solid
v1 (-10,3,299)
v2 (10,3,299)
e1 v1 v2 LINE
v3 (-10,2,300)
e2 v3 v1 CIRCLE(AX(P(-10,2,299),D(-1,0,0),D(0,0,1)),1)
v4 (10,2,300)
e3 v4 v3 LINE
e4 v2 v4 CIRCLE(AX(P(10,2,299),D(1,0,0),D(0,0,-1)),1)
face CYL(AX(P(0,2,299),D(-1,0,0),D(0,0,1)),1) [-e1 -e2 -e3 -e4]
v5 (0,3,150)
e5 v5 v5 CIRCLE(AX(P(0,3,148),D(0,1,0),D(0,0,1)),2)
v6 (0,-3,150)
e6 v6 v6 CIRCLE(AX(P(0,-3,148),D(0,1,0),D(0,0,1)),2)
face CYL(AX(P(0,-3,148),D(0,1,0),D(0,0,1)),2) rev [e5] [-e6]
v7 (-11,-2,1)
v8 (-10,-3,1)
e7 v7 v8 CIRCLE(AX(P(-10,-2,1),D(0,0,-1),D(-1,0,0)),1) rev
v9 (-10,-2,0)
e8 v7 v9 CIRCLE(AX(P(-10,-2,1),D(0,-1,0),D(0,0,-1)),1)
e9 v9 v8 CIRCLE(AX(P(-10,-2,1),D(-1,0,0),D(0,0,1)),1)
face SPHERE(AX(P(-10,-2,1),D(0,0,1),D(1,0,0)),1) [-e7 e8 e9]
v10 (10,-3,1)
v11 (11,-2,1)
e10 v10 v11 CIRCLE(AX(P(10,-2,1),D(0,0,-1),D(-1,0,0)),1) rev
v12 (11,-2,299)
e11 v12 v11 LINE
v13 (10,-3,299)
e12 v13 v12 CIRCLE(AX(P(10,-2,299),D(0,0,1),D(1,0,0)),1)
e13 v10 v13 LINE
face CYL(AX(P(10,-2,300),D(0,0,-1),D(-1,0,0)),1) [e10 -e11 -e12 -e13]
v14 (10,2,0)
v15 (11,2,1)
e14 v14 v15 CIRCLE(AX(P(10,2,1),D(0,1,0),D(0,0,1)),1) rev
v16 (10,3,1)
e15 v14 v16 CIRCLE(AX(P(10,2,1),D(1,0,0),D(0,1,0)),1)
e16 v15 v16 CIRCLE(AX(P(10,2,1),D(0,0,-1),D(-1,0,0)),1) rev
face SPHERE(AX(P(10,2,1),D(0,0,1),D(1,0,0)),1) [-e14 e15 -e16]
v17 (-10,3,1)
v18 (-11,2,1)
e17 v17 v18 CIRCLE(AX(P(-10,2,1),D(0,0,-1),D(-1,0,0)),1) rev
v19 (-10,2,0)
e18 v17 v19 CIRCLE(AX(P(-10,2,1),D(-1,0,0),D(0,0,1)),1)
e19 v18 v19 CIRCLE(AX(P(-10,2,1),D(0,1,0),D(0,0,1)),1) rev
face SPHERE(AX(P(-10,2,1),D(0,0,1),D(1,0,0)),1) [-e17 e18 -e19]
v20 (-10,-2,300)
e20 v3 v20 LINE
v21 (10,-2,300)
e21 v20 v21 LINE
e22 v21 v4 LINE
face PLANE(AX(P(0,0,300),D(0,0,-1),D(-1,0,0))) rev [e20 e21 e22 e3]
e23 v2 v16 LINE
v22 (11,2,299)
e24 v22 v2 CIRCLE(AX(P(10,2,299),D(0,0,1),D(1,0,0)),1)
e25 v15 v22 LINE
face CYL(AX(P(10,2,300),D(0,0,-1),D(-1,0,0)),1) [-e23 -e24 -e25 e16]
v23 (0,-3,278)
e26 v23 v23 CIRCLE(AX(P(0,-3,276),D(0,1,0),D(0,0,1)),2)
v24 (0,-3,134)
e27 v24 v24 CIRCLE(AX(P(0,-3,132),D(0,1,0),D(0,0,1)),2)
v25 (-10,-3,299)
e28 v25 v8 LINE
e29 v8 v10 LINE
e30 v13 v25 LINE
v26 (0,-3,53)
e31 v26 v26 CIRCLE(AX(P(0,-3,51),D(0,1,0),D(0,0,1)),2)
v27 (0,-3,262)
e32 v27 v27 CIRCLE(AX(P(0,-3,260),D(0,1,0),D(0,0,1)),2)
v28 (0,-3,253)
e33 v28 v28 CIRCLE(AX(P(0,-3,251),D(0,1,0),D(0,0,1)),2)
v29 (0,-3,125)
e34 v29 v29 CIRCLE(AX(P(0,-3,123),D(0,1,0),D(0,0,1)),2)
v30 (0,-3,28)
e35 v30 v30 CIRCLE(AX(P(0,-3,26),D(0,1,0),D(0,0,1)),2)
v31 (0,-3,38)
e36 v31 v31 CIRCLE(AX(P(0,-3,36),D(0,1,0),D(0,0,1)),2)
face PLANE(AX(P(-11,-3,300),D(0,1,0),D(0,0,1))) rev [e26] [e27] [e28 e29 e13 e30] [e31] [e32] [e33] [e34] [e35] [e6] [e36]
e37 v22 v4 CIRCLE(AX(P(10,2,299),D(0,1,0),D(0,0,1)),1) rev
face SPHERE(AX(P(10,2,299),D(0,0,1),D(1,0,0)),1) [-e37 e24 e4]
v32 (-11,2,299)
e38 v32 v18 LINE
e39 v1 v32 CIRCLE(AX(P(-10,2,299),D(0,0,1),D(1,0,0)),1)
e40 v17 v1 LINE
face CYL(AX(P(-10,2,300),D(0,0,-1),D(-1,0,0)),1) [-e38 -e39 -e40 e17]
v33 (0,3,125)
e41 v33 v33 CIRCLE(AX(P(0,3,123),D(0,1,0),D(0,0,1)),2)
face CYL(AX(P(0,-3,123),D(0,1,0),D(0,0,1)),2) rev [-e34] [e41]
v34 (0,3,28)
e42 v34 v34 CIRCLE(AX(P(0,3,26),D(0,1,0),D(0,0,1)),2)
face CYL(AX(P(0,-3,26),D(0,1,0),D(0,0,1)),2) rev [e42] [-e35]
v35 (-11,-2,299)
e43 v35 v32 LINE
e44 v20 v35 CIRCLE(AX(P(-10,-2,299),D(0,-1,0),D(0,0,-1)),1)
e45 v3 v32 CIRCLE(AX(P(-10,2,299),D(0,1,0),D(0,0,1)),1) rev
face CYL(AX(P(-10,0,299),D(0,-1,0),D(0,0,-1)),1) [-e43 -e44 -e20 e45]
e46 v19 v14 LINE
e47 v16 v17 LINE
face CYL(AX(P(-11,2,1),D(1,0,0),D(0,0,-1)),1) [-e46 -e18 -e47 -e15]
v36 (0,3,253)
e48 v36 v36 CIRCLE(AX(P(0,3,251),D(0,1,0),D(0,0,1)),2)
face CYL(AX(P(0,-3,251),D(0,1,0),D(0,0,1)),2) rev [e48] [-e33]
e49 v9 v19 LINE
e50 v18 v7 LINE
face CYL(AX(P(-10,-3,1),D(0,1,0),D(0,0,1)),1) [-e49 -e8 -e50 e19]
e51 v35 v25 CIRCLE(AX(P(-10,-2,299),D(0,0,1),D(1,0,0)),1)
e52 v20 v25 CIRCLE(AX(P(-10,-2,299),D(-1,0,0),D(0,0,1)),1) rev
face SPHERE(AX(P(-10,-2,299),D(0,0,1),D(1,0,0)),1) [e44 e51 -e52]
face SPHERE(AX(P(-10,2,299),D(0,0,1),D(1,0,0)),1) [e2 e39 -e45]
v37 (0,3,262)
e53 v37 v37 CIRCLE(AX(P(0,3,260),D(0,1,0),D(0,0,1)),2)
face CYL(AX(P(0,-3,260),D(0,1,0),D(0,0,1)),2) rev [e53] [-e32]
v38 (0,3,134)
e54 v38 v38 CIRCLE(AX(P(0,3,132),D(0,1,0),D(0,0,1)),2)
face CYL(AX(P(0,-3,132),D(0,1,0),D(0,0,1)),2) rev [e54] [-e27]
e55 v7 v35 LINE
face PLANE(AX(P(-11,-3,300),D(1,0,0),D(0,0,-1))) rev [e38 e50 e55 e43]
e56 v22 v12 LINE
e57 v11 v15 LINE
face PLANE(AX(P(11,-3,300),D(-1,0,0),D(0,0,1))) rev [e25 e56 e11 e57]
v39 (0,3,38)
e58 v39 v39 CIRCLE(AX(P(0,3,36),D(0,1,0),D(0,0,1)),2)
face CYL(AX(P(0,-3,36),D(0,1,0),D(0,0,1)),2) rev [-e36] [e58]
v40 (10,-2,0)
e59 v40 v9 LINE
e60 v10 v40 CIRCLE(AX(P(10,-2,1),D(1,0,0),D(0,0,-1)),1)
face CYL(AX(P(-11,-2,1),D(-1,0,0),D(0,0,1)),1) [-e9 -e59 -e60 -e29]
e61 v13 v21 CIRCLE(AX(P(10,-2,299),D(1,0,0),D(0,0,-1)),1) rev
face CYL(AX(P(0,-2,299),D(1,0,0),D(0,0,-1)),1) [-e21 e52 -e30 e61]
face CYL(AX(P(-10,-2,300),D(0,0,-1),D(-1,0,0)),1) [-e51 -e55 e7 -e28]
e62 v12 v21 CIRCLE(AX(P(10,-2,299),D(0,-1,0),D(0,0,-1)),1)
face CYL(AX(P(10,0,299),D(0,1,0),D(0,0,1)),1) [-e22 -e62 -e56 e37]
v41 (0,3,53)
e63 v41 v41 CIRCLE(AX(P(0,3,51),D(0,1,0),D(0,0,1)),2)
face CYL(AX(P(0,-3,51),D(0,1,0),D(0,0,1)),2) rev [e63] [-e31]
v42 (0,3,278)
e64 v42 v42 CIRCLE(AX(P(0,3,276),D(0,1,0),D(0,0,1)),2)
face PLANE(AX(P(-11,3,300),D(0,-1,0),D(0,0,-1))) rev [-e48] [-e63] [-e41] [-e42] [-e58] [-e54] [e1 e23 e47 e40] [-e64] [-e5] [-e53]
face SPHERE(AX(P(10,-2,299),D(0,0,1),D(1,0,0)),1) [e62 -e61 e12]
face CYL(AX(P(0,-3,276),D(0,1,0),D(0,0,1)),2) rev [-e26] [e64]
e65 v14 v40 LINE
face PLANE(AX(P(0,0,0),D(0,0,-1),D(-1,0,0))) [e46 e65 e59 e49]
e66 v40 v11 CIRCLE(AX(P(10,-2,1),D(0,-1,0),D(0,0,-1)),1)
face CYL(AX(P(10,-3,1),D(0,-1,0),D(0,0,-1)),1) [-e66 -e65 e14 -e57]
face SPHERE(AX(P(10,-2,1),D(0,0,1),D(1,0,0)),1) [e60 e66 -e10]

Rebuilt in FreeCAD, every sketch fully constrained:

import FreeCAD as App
import Part
import Sketcher

V = App.Vector
Q = App.Units.Quantity


def edges_at(feature, points):
    """Names of the edges that pass closest to the given points."""
    edges = feature.Shape.Edges
    near = lambda p: min(range(len(edges)), key=lambda i: edges[i].distToShape(Part.Vertex(*p))[0])
    return sorted({f"Edge{near(p) + 1}" for p in points})

doc = App.newDocument("Part")
params = doc.addObject("Spreadsheet::Sheet", "Params")
for row, (alias, value) in enumerate([
    ("sketch1_width", "22 mm"),
    ("sketch1_height", "6 mm"),
    ("pad1_length", "300 mm"),
    ("sketch2_diameter", "4 mm"),
    ("pocket1_length", "6 mm"),
    ("fillet_radius", "1 mm"),
], start=1):
    params.set(f"A{row}", alias)
    params.set(f"B{row}", "=" + value)
    params.setAlias(f"B{row}", alias)

body = doc.addObject("PartDesign::Body", "Body")

# Sketch on XY plane
sketch1 = doc.addObject("Sketcher::SketchObject", "Sketch")
body.addObject(sketch1)
sketch1.AttachmentSupport = (doc.XY_Plane, [""])
sketch1.MapMode = "FlatFace"
sketch1.addGeometry(Part.LineSegment(V(-11, 3, 0), V(-11, -3, 0)), False)
sketch1.addGeometry(Part.LineSegment(V(-11, -3, 0), V(11, -3, 0)), False)
sketch1.addGeometry(Part.LineSegment(V(11, -3, 0), V(11, 3, 0)), False)
sketch1.addGeometry(Part.LineSegment(V(11, 3, 0), V(-11, 3, 0)), False)
sketch1.addConstraint(Sketcher.Constraint("Coincident", 0, 2, 1, 1))
sketch1.addConstraint(Sketcher.Constraint("Coincident", 1, 2, 2, 1))
sketch1.addConstraint(Sketcher.Constraint("Coincident", 2, 2, 3, 1))
sketch1.addConstraint(Sketcher.Constraint("Coincident", 3, 2, 0, 1))
sketch1.addConstraint(Sketcher.Constraint("Vertical", 0))
sketch1.addConstraint(Sketcher.Constraint("Horizontal", 1))
sketch1.addConstraint(Sketcher.Constraint("Vertical", 2))
sketch1.addConstraint(Sketcher.Constraint("Horizontal", 3))
sketch1.addConstraint(Sketcher.Constraint("Symmetric", 0, 2, 2, 2, -1, 1))
sketch1.addConstraint(Sketcher.Constraint("DistanceX", 1, 1, 1, 2, Q("22 mm")))
sketch1.addConstraint(Sketcher.Constraint("DistanceY", 0, 2, 0, 1, Q("6 mm")))
sketch1.setExpression("Constraints[9]", "Params.sketch1_width")
sketch1.setExpression("Constraints[10]", "Params.sketch1_height")
pad1 = doc.addObject("PartDesign::Pad", "Pad")
body.addObject(pad1)
pad1.Profile = sketch1
pad1.setExpression("Length", "Params.pad1_length")

# Sketch on XZ plane
sketch2 = doc.addObject("Sketcher::SketchObject", "Sketch001")
body.addObject(sketch2)
sketch2.AttachmentSupport = (doc.XZ_Plane, [""])
sketch2.MapMode = "FlatFace"
sketch2.AttachmentOffset = App.Placement(V(0, 0, -3), App.Rotation())
sketch2.addGeometry(Part.Circle(V(0, 26, 0), V(0, 0, 1), 2), False)
sketch2.addGeometry(Part.Circle(V(0, 36, 0), V(0, 0, 1), 2), False)
sketch2.addGeometry(Part.Circle(V(0, 51, 0), V(0, 0, 1), 2), False)
sketch2.addGeometry(Part.Circle(V(0, 260, 0), V(0, 0, 1), 2), False)
sketch2.addGeometry(Part.Circle(V(0, 276, 0), V(0, 0, 1), 2), False)
sketch2.addGeometry(Part.Circle(V(0, 251, 0), V(0, 0, 1), 2), False)
sketch2.addGeometry(Part.Circle(V(0, 148, 0), V(0, 0, 1), 2), False)
sketch2.addGeometry(Part.Circle(V(0, 123, 0), V(0, 0, 1), 2), False)
sketch2.addGeometry(Part.Circle(V(0, 132, 0), V(0, 0, 1), 2), False)
sketch2.addConstraint(Sketcher.Constraint("Equal", 0, 1))
sketch2.addConstraint(Sketcher.Constraint("Equal", 1, 2))
sketch2.addConstraint(Sketcher.Constraint("Equal", 2, 3))
sketch2.addConstraint(Sketcher.Constraint("Equal", 3, 4))
sketch2.addConstraint(Sketcher.Constraint("Equal", 4, 5))
sketch2.addConstraint(Sketcher.Constraint("Equal", 5, 6))
sketch2.addConstraint(Sketcher.Constraint("Equal", 6, 7))
sketch2.addConstraint(Sketcher.Constraint("Equal", 7, 8))
sketch2.addConstraint(Sketcher.Constraint("PointOnObject", 0, 3, -2))
sketch2.addConstraint(Sketcher.Constraint("PointOnObject", 1, 3, -2))
sketch2.addConstraint(Sketcher.Constraint("PointOnObject", 2, 3, -2))
sketch2.addConstraint(Sketcher.Constraint("PointOnObject", 3, 3, -2))
sketch2.addConstraint(Sketcher.Constraint("PointOnObject", 4, 3, -2))
sketch2.addConstraint(Sketcher.Constraint("PointOnObject", 5, 3, -2))
sketch2.addConstraint(Sketcher.Constraint("PointOnObject", 6, 3, -2))
sketch2.addConstraint(Sketcher.Constraint("PointOnObject", 7, 3, -2))
sketch2.addConstraint(Sketcher.Constraint("PointOnObject", 8, 3, -2))
sketch2.addConstraint(Sketcher.Constraint("Diameter", 0, Q("4 mm")))
sketch2.addConstraint(Sketcher.Constraint("DistanceY", -1, 1, 0, 3, Q("26 mm")))
sketch2.addConstraint(Sketcher.Constraint("DistanceY", -1, 1, 1, 3, Q("36 mm")))
sketch2.addConstraint(Sketcher.Constraint("DistanceY", -1, 1, 2, 3, Q("51 mm")))
sketch2.addConstraint(Sketcher.Constraint("DistanceY", -1, 1, 3, 3, Q("260 mm")))
sketch2.addConstraint(Sketcher.Constraint("DistanceY", -1, 1, 4, 3, Q("276 mm")))
sketch2.addConstraint(Sketcher.Constraint("DistanceY", -1, 1, 5, 3, Q("251 mm")))
sketch2.addConstraint(Sketcher.Constraint("DistanceY", -1, 1, 6, 3, Q("148 mm")))
sketch2.addConstraint(Sketcher.Constraint("DistanceY", -1, 1, 7, 3, Q("123 mm")))
sketch2.addConstraint(Sketcher.Constraint("DistanceY", -1, 1, 8, 3, Q("132 mm")))
sketch2.setExpression("Constraints[17]", "Params.sketch2_diameter")
pocket1 = doc.addObject("PartDesign::Pocket", "Pocket")
body.addObject(pocket1)
pocket1.Profile = sketch2
pocket1.setExpression("Length", "Params.pocket1_length")
pocket1.Reversed = True
doc.recompute()

fillet = doc.addObject("PartDesign::Fillet", "Fillet")
body.addObject(fillet)
fillet.Base = (pocket1, edges_at(pocket1, [
    (-11, 0, 300),
    (0, -3, 300),
    (11, 0, 300),
    (0, -3, 0),
    (-11, 0, 0),
    (0, 3, 0),
    (11, 0, 0),
    (0, 3, 300),
    (11, -3, 150),
    (-11, -3, 150),
    (-11, 3, 150),
    (11, 3, 150),
]))
fillet.setExpression("Radius", "Params.fillet_radius")

doc.recompute()
